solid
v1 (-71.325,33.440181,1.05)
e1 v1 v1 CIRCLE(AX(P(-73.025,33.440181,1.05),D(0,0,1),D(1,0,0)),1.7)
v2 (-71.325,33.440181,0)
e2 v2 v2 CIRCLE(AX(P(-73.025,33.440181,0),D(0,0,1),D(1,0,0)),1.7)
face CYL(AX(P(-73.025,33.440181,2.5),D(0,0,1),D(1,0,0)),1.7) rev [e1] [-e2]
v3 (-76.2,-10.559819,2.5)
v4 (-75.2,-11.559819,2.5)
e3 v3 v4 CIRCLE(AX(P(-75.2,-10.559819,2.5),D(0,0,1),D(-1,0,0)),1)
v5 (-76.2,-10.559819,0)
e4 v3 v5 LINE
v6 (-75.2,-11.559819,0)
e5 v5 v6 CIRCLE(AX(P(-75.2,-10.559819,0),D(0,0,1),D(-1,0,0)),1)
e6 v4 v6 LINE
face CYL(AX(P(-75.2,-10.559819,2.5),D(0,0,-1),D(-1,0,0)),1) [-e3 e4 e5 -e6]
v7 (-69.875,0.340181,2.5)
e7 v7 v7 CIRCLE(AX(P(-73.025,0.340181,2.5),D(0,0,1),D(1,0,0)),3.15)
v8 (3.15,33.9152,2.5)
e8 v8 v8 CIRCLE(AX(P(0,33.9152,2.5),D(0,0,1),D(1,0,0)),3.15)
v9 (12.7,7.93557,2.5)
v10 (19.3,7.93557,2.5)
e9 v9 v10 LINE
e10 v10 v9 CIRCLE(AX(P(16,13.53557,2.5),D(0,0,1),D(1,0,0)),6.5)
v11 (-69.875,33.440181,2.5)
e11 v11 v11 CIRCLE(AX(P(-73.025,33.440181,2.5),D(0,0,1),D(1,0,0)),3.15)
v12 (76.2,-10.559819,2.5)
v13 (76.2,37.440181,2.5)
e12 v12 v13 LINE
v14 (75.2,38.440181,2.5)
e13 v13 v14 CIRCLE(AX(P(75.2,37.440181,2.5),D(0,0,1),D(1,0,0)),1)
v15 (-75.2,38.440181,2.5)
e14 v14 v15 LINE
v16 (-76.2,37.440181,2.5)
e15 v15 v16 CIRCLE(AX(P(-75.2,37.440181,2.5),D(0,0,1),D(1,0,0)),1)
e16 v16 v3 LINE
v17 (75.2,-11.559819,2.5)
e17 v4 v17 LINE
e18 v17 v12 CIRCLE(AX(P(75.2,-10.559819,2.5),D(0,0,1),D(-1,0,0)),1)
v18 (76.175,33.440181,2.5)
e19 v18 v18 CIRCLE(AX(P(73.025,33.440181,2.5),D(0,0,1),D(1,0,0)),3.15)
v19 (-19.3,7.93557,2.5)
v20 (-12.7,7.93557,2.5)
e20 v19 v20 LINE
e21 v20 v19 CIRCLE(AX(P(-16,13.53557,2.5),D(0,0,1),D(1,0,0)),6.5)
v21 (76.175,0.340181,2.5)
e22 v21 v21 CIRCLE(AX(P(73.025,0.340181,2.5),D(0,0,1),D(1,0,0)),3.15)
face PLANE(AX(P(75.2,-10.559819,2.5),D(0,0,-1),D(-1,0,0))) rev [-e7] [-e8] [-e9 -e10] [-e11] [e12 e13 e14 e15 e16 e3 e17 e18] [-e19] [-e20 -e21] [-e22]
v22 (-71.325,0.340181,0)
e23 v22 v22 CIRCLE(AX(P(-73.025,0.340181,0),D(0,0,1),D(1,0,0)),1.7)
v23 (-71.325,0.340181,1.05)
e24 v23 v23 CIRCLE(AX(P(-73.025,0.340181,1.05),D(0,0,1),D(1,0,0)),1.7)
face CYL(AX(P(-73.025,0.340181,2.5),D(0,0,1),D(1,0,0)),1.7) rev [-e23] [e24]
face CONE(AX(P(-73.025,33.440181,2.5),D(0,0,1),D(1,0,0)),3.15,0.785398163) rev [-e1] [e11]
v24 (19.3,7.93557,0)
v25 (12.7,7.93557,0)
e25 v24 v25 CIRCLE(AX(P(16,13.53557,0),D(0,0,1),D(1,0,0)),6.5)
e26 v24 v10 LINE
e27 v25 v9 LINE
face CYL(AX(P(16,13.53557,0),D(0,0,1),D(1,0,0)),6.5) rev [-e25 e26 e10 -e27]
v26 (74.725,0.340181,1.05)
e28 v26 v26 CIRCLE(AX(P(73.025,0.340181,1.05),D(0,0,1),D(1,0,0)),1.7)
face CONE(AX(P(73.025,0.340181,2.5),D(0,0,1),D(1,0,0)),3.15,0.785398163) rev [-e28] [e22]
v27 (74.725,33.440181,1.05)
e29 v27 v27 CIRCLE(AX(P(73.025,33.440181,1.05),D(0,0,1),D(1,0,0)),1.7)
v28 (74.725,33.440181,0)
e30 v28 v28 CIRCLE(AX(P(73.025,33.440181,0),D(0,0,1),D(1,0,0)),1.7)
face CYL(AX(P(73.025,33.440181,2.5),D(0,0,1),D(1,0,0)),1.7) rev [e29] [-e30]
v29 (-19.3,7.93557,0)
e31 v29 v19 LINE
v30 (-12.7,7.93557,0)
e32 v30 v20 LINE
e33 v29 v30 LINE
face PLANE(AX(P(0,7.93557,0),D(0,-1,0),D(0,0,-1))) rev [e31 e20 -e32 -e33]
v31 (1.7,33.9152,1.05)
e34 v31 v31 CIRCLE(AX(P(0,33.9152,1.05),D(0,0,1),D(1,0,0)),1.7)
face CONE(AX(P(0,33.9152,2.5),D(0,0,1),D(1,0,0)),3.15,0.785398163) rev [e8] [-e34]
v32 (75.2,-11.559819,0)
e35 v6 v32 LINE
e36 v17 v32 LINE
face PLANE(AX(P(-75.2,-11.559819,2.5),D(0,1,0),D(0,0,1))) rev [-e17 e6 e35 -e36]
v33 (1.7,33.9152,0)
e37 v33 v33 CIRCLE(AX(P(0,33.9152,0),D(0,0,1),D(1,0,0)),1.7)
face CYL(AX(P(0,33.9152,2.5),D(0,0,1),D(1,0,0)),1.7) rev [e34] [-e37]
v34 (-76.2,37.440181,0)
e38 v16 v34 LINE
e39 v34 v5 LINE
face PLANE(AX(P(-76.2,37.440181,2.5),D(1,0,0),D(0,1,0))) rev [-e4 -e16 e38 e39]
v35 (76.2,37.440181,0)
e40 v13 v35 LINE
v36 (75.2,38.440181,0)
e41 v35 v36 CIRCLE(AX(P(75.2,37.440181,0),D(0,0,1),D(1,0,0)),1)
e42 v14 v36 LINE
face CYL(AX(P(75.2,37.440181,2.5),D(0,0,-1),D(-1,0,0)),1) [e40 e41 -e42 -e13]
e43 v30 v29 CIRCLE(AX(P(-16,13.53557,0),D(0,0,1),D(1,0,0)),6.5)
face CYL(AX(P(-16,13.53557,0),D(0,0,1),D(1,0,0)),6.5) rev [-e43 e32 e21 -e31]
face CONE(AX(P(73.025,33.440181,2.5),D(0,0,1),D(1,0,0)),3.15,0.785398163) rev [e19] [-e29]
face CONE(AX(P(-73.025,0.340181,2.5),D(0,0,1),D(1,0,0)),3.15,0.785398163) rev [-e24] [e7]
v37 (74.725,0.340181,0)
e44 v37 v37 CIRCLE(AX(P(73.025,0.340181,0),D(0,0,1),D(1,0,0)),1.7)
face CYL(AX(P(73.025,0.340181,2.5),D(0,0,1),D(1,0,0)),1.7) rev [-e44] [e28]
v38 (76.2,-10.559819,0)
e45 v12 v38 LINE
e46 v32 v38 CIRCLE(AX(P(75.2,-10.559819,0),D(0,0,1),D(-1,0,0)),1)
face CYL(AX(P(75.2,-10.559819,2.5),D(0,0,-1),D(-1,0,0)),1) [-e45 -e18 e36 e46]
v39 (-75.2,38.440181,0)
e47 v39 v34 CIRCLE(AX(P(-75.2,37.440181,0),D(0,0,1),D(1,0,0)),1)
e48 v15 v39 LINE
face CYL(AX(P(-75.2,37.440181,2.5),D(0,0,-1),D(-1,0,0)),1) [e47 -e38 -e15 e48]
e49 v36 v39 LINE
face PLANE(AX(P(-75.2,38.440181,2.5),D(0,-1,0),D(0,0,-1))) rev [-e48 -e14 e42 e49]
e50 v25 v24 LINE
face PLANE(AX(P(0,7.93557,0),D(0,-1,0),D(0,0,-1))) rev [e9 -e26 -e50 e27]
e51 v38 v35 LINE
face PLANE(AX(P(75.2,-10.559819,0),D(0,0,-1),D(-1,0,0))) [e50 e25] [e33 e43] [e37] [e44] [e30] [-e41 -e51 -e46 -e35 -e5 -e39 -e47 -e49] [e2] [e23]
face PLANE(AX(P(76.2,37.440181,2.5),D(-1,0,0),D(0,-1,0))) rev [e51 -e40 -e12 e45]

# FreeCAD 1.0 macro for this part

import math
import FreeCAD as App
import Part
import Sketcher
from FreeCAD import Vector
Q = App.Units.Quantity

doc = App.newDocument("Part")
body = doc.addObject("PartDesign::Body", "Body")

# Sketch on XY plane
sketch1 = body.newObject("Sketcher::SketchObject", "Sketch")
sketch1.AttachmentSupport = (doc.getObject("XY_Plane"), [""])
sketch1.MapMode = "FlatFace"
sketch1.addGeometry([
    Part.LineSegment(Vector(-75.2, -11.6, 0), Vector(75.2, -11.6, 0)),  # 0
    Part.ArcOfCircle(Part.Circle(Vector(75.2, -10.6, 0), Vector(0, 0, 1), 1), math.radians(-90), math.radians(0)),  # 1
    Part.LineSegment(Vector(76.2, -10.6, 0), Vector(76.2, 37.4, 0)),  # 2
    Part.ArcOfCircle(Part.Circle(Vector(75.2, 37.4, 0), Vector(0, 0, 1), 1), math.radians(0), math.radians(90)),  # 3
    Part.LineSegment(Vector(75.2, 38.4, 0), Vector(-75.2, 38.4, 0)),  # 4
    Part.ArcOfCircle(Part.Circle(Vector(-75.2, 37.4, 0), Vector(0, 0, 1), 1), math.radians(90), math.radians(180)),  # 5
    Part.LineSegment(Vector(-76.2, 37.4, 0), Vector(-76.2, -10.6, 0)),  # 6
    Part.ArcOfCircle(Part.Circle(Vector(-75.2, -10.6, 0), Vector(0, 0, 1), 1), math.radians(-180), math.radians(-90)),  # 7
], False)
sketch1.addConstraint([
    Sketcher.Constraint("Tangent", 0, 2, 1, 1),
    Sketcher.Constraint("Tangent", 1, 2, 2, 1),
    Sketcher.Constraint("Tangent", 2, 2, 3, 1),
    Sketcher.Constraint("Tangent", 3, 2, 4, 1),
    Sketcher.Constraint("Tangent", 4, 2, 5, 1),
    Sketcher.Constraint("Tangent", 5, 2, 6, 1),
    Sketcher.Constraint("Tangent", 6, 2, 7, 1),
    Sketcher.Constraint("Tangent", 7, 2, 0, 1),
    Sketcher.Constraint("Horizontal", 0),
    Sketcher.Constraint("Vertical", 2),
    Sketcher.Constraint("Horizontal", 4),
    Sketcher.Constraint("Vertical", 6),
    Sketcher.Constraint("Equal", 1, 3),
    Sketcher.Constraint("Equal", 3, 5),
    Sketcher.Constraint("Equal", 5, 7),
    Sketcher.Constraint("Radius", 1, Q("1 mm")),
    Sketcher.Constraint("DistanceY", 2, 1, 2, 2, Q("48 mm")),
    Sketcher.Constraint("DistanceX", 0, 1, 0, 2, Q("150.4 mm")),
    Sketcher.Constraint("DistanceX", -1, 1, 1, 3, Q("75.2 mm")),
    Sketcher.Constraint("DistanceY", 1, 3, -1, 1, Q("10.559819 mm")),
])
pad1 = body.newObject("PartDesign::Pad", "Pad")
pad1.Profile = sketch1
pad1.Length = 2.5

# Sketch on YZ plane
sketch2 = body.newObject("Sketcher::SketchObject", "Sketch001")
sketch2.AttachmentSupport = (doc.getObject("YZ_Plane"), [""])
sketch2.MapMode = "FlatFace"
sketch2.AttachmentOffset = App.Placement(Vector(0, 0, -73.025), App.Rotation())
sketch2.addGeometry([
    Part.LineSegment(Vector(33.4, 0, 0), Vector(33.4, 2.5, 0)),  # 0
    Part.LineSegment(Vector(33.4, 2.5, 0), Vector(30.3, 2.5, 0)),  # 1
    Part.LineSegment(Vector(30.3, 2.5, 0), Vector(31.7, 1.1, 0)),  # 2
    Part.LineSegment(Vector(31.7, 1.1, 0), Vector(31.7, 0, 0)),  # 3
    Part.LineSegment(Vector(31.7, 0, 0), Vector(33.4, 0, 0)),  # 4
], False)
sketch2.addGeometry(Part.LineSegment(Vector(33.4, 2.5, 0), Vector(33.4, 0, 0)), True)  # axis
sketch2.addConstraint([
    Sketcher.Constraint("Coincident", 0, 2, 1, 1),
    Sketcher.Constraint("Coincident", 1, 2, 2, 1),
    Sketcher.Constraint("Coincident", 2, 2, 3, 1),
    Sketcher.Constraint("Coincident", 3, 2, 4, 1),
    Sketcher.Constraint("Coincident", 4, 2, 0, 1),
    Sketcher.Constraint("Vertical", 0),
    Sketcher.Constraint("Horizontal", 1),
    Sketcher.Constraint("Vertical", 3),
    Sketcher.Constraint("Horizontal", 4),
    Sketcher.Constraint("Vertical", 5),
    Sketcher.Constraint("Coincident", 5, 1, 0, 2),
    Sketcher.Constraint("PointOnObject", 3, 2, -1),
    Sketcher.Constraint("PointOnObject", 5, 2, -1),
    Sketcher.Constraint("Angle", 2, Q("-45 deg")),
    Sketcher.Constraint("DistanceX", 4, 1, 4, 2, Q("1.7 mm")),
    Sketcher.Constraint("DistanceY", 0, 1, 0, 2, Q("2.5 mm")),
    Sketcher.Constraint("DistanceX", 1, 2, 1, 1, Q("3.15 mm")),
    Sketcher.Constraint("DistanceX", -1, 1, 0, 2, Q("33.440181 mm")),
])
groove = body.newObject("PartDesign::Groove", "Groove")
groove.Profile = sketch2
groove.ReferenceAxis = (sketch2, ["Axis0"])
groove.Angle = 360
doc.recompute()

linearpattern = body.newObject("PartDesign::LinearPattern", "LinearPattern")
linearpattern.Originals = [groove]
linearpattern.Direction = (doc.getObject("Y_Axis"), [""])
linearpattern.Mode = "offset"
linearpattern.Offset = 33.1
linearpattern.Occurrences = 2
linearpattern.Reversed = True
body.Tip = linearpattern
doc.recompute()

datumline = body.newObject("PartDesign::Line", "DatumLine")
datumline.Placement = App.Placement(Vector(0, 0, 0), App.Rotation(Vector(0, 0, 1), Vector(0.999978844, 0.006504746, 0)))
linearpattern2 = body.newObject("PartDesign::LinearPattern", "LinearPattern001")
linearpattern2.Originals = [groove]
linearpattern2.Direction = (datumline, [""])
linearpattern2.Mode = "offset"
linearpattern2.Offset = 73.026545
linearpattern2.Occurrences = 2
body.Tip = linearpattern2
doc.recompute()

linearpattern3 = body.newObject("PartDesign::LinearPattern", "LinearPattern002")
linearpattern3.Originals = [groove]
linearpattern3.Direction = (doc.getObject("X_Axis"), [""])
linearpattern3.Mode = "offset"
linearpattern3.Offset = 146.05
linearpattern3.Occurrences = 2
body.Tip = linearpattern3
doc.recompute()

datumline2 = body.newObject("PartDesign::Line", "DatumLine001")
datumline2.Placement = App.Placement(Vector(0, 0, 0), App.Rotation(Vector(0, 0, 1), Vector(0.975267147, -0.221029391, 0)))
linearpattern4 = body.newObject("PartDesign::LinearPattern", "LinearPattern003")
linearpattern4.Originals = [groove]
linearpattern4.Direction = (datumline2, [""])
linearpattern4.Mode = "offset"
linearpattern4.Offset = 149.75384
linearpattern4.Occurrences = 2
body.Tip = linearpattern4

# Sketch on XY plane
sketch3 = body.newObject("Sketcher::SketchObject", "Sketch002")
sketch3.AttachmentSupport = (doc.getObject("XY_Plane"), [""])
sketch3.MapMode = "FlatFace"
sketch3.AttachmentOffset = App.Placement(Vector(0, 0, 2.5), App.Rotation())
sketch3.addGeometry([
    Part.ArcOfCircle(Part.Circle(Vector(-16, 14, 0), Vector(0, 0, 1), 6), math.radians(-59), math.radians(239)),
    Part.LineSegment(Vector(-19, 8, 0), Vector(-13, 8, 0)),
    Part.ArcOfCircle(Part.Circle(Vector(16, 14, 0), Vector(0, 0, 1), 6), math.radians(-59), math.radians(239)),
    Part.LineSegment(Vector(13, 8, 0), Vector(19, 8, 0)),
], False)
sketch3.addConstraint([
    Sketcher.Constraint("Coincident", 0, 1, 1, 2),
    Sketcher.Constraint("Coincident", 1, 1, 0, 2),
    Sketcher.Constraint("Coincident", 2, 1, 3, 2),
    Sketcher.Constraint("Coincident", 3, 1, 2, 2),
    Sketcher.Constraint("Horizontal", 1),
    Sketcher.Constraint("Horizontal", 3),
    Sketcher.Constraint("Equal", 0, 2),
    Sketcher.Constraint("Symmetric", 0, 3, 2, 3, -2),
    Sketcher.Constraint("Horizontal", 1, 1, 2, 1),
    Sketcher.Constraint("Radius", 0, Q("6.5 mm")),
    Sketcher.Constraint("DistanceX", 1, 1, 1, 2, Q("6.6 mm")),
    Sketcher.Constraint("DistanceX", 0, 3, -1, 1, Q("16 mm")),
    Sketcher.Constraint("DistanceY", -1, 1, 0, 3, Q("13.53557 mm")),
])
pocket1 = body.newObject("PartDesign::Pocket", "Pocket")
pocket1.Profile = sketch3
pocket1.Type = "ThroughAll"

doc.recompute()
